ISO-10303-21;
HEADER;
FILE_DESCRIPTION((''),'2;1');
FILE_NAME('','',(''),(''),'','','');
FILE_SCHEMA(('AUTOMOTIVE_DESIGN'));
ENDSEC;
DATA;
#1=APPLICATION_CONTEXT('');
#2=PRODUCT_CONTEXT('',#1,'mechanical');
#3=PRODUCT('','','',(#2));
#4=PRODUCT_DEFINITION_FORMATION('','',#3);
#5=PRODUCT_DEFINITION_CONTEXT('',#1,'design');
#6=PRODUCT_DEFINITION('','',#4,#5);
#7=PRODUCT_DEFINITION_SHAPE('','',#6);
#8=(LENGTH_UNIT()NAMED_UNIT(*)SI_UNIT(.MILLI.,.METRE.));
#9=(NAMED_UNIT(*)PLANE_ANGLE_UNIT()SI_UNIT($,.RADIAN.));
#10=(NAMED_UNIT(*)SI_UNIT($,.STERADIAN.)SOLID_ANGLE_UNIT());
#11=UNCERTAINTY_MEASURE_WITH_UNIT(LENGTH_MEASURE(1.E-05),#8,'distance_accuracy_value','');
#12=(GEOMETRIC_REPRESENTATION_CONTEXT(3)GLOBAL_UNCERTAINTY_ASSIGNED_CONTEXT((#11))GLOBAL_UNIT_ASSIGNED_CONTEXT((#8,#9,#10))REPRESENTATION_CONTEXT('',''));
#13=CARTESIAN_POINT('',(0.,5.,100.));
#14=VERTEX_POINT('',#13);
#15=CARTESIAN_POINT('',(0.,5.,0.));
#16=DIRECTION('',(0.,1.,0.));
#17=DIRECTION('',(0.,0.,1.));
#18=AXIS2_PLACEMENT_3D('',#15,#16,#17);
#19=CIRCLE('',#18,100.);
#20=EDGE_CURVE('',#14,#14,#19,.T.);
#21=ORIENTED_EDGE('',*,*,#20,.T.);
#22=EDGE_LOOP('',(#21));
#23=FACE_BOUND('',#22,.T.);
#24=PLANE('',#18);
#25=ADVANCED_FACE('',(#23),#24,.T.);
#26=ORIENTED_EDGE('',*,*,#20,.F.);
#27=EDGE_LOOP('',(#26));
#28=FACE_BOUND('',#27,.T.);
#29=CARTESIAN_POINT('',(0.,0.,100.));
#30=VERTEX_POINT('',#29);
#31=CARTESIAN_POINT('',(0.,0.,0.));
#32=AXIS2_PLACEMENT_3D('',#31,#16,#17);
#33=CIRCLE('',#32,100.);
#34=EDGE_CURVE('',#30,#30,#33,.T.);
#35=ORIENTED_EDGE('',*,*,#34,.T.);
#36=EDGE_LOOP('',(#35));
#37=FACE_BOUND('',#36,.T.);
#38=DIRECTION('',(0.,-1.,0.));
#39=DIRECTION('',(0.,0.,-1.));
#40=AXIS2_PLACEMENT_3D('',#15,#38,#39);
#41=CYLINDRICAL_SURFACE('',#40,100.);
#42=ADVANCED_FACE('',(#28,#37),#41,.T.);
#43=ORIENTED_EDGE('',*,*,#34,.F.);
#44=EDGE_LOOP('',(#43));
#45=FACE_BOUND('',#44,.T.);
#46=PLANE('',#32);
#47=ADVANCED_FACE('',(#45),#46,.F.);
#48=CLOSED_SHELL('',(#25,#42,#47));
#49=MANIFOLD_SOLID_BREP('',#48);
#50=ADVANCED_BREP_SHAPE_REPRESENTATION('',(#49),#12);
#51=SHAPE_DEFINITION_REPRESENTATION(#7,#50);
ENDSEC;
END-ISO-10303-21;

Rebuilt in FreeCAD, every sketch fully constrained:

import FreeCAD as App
import Part
import Sketcher
from FreeCAD import Vector

doc = App.newDocument("Part")
body = doc.addObject("PartDesign::Body", "Body")

# Sketch on XZ plane
sketch1 = body.newObject("Sketcher::SketchObject", "Sketch")
sketch1.AttachmentSupport = (doc.getObject("XZ_Plane"), [""])
sketch1.MapMode = "FlatFace"
sketch1.addGeometry(Part.Circle(Vector(0, 0, 0), Vector(0, 0, 1), 100), False)
sketch1.addConstraint(Sketcher.Constraint("Coincident", 0, 3, -1, 1))
sketch1.addConstraint(Sketcher.Constraint("Diameter", 0, 200.0))
pad1 = body.newObject("PartDesign::Pad", "Pad")
pad1.Profile = sketch1
pad1.Length = 5
pad1.Reversed = True

doc.recompute()
